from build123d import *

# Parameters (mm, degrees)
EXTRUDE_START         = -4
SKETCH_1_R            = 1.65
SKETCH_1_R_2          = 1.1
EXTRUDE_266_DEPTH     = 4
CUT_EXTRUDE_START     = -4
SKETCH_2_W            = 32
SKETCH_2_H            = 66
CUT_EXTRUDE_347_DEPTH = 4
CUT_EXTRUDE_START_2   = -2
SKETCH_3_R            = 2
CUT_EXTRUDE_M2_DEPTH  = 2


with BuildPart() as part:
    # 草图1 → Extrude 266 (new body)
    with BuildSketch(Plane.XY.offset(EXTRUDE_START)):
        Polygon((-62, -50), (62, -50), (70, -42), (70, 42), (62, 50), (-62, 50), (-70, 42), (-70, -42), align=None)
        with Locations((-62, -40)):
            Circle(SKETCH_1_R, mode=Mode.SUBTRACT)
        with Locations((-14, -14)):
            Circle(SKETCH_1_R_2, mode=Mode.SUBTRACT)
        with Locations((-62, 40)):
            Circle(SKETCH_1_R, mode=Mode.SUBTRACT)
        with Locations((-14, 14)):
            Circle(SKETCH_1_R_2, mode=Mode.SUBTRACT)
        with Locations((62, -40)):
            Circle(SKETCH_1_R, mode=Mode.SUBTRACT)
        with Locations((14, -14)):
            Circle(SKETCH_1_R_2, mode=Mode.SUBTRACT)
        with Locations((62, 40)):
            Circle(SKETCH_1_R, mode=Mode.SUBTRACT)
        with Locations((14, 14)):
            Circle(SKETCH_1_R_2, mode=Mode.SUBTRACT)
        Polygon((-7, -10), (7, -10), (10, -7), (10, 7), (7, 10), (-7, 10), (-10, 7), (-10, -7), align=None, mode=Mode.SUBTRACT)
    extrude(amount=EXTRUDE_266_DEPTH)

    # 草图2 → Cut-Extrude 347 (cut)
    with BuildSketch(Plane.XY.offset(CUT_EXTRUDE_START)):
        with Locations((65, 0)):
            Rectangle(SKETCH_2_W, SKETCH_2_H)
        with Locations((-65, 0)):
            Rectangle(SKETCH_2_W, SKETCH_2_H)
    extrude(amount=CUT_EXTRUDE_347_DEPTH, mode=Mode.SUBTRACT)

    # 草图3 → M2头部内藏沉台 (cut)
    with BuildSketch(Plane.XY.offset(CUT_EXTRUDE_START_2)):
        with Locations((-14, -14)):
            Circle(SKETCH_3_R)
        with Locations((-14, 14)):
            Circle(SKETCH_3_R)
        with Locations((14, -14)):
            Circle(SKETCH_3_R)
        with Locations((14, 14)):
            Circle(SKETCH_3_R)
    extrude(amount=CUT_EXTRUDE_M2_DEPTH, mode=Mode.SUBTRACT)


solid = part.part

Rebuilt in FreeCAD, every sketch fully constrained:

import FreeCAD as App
import Part
import Sketcher
from FreeCAD import Vector
Q = App.Units.Quantity

doc = App.newDocument("Part")
body = doc.addObject("PartDesign::Body", "Body")

sketch1 = doc.addObject("Sketcher::SketchObject", "Sketch")
body.addObject(sketch1)
sketch1.AttachmentSupport = (doc.XY_Plane, [""])
sketch1.MapMode = "FlatFace"
sketch1.AttachmentOffset = App.Placement(Vector(0, 0, -4), App.Rotation())
sketch1.addGeometry([
    Part.LineSegment(Vector(-62, -50, 0), Vector(62, -50, 0)),
    Part.LineSegment(Vector(62, -50, 0), Vector(70, -42, 0)),
    Part.LineSegment(Vector(70, -42, 0), Vector(70, 42, 0)),
    Part.LineSegment(Vector(70, 42, 0), Vector(62, 50, 0)),
    Part.LineSegment(Vector(62, 50, 0), Vector(-62, 50, 0)),
    Part.LineSegment(Vector(-62, 50, 0), Vector(-70, 42, 0)),
    Part.LineSegment(Vector(-70, 42, 0), Vector(-70, -42, 0)),
    Part.LineSegment(Vector(-70, -42, 0), Vector(-62, -50, 0)),
    Part.Circle(Vector(-62, -40, 0), Vector(0, 0, 1), 1.6),
    Part.Circle(Vector(-14, -14, 0), Vector(0, 0, 1), 1.1),
    Part.Circle(Vector(62, -40, 0), Vector(0, 0, 1), 1.6),
    Part.Circle(Vector(14, -14, 0), Vector(0, 0, 1), 1.1),
    Part.LineSegment(Vector(7, -10, 0), Vector(-7, -10, 0)),
    Part.LineSegment(Vector(-7, -10, 0), Vector(-10, -7, 0)),
    Part.LineSegment(Vector(-10, -7, 0), Vector(-10, 7, 0)),
    Part.LineSegment(Vector(-10, 7, 0), Vector(-7, 10, 0)),
    Part.LineSegment(Vector(-7, 10, 0), Vector(7, 10, 0)),
    Part.LineSegment(Vector(7, 10, 0), Vector(10, 7, 0)),
    Part.LineSegment(Vector(10, 7, 0), Vector(10, -7, 0)),
    Part.LineSegment(Vector(10, -7, 0), Vector(7, -10, 0)),
    Part.Circle(Vector(-14, 14, 0), Vector(0, 0, 1), 1.1),
    Part.Circle(Vector(-62, 40, 0), Vector(0, 0, 1), 1.6),
    Part.Circle(Vector(14, 14, 0), Vector(0, 0, 1), 1.1),
    Part.Circle(Vector(62, 40, 0), Vector(0, 0, 1), 1.6),
], False)
sketch1.addConstraint([
    Sketcher.Constraint("Coincident", 0, 2, 1, 1),
    Sketcher.Constraint("Coincident", 1, 2, 2, 1),
    Sketcher.Constraint("Coincident", 2, 2, 3, 1),
    Sketcher.Constraint("Coincident", 3, 2, 4, 1),
    Sketcher.Constraint("Coincident", 4, 2, 5, 1),
    Sketcher.Constraint("Coincident", 5, 2, 6, 1),
    Sketcher.Constraint("Coincident", 6, 2, 7, 1),
    Sketcher.Constraint("Coincident", 7, 2, 0, 1),
    Sketcher.Constraint("Coincident", 12, 2, 13, 1),
    Sketcher.Constraint("Coincident", 13, 2, 14, 1),
    Sketcher.Constraint("Coincident", 14, 2, 15, 1),
    Sketcher.Constraint("Coincident", 15, 2, 16, 1),
    Sketcher.Constraint("Coincident", 16, 2, 17, 1),
    Sketcher.Constraint("Coincident", 17, 2, 18, 1),
    Sketcher.Constraint("Coincident", 18, 2, 19, 1),
    Sketcher.Constraint("Coincident", 19, 2, 12, 1),
    Sketcher.Constraint("Horizontal", 0),
    Sketcher.Constraint("Vertical", 2),
    Sketcher.Constraint("Horizontal", 4),
    Sketcher.Constraint("Vertical", 6),
    Sketcher.Constraint("Horizontal", 12),
    Sketcher.Constraint("Vertical", 14),
    Sketcher.Constraint("Horizontal", 16),
    Sketcher.Constraint("Vertical", 18),
    Sketcher.Constraint("Equal", 8, 10),
    Sketcher.Constraint("Equal", 9, 11),
    Sketcher.Constraint("Equal", 11, 20),
    Sketcher.Constraint("Equal", 10, 21),
    Sketcher.Constraint("Equal", 20, 22),
    Sketcher.Constraint("Equal", 21, 23),
    Sketcher.Constraint("Symmetric", 11, 3, 20, 3, -1, 1),
    Sketcher.Constraint("Symmetric", 10, 3, 21, 3, -1, 1),
    Sketcher.Constraint("Symmetric", 9, 3, 22, 3, -1, 1),
    Sketcher.Constraint("Symmetric", 8, 3, 23, 3, -1, 1),
    Sketcher.Constraint("Symmetric", 0, 2, 4, 2, -1, 1),
    Sketcher.Constraint("Symmetric", 1, 2, 5, 2, -1, 1),
    Sketcher.Constraint("Symmetric", 12, 2, 16, 2, -1, 1),
    Sketcher.Constraint("Symmetric", 13, 2, 17, 2, -1, 1),
    Sketcher.Constraint("Symmetric", 8, 3, 10, 3, -2),
    Sketcher.Constraint("Symmetric", 9, 3, 11, 3, -2),
    Sketcher.Constraint("Perpendicular", 1, 3),
    Sketcher.Constraint("Perpendicular", 5, 7),
    Sketcher.Constraint("Parallel", 7, 13),
    Sketcher.Constraint("Perpendicular", 13, 15),
    Sketcher.Constraint("Perpendicular", 17, 19),
    Sketcher.Constraint("Horizontal", 2, 2, 5, 2),
    Sketcher.Constraint("Horizontal", 1, 2, 6, 2),
    Sketcher.Constraint("Horizontal", 14, 2, 17, 2),
    Sketcher.Constraint("Horizontal", 13, 2, 18, 2),
    Sketcher.Constraint("Vertical", 23, 3, 0, 2),
    Sketcher.Constraint("Vertical", 0, 2, 3, 2),
    Sketcher.Constraint("Equal", 16, 14),
    Sketcher.Constraint("Diameter", 8, Q("3.3 mm")),
    Sketcher.Constraint("Diameter", 9, Q("2.2 mm")),
    Sketcher.Constraint("DistanceX", 0, 1, 0, 2, Q("124 mm")),
    Sketcher.Constraint("DistanceX", 12, 2, 12, 1, Q("14 mm")),
    Sketcher.Constraint("DistanceY", 2, 1, 2, 2, Q("84 mm")),
    Sketcher.Constraint("DistanceY", 8, 3, -1, 1, Q("40 mm")),
    Sketcher.Constraint("DistanceX", 9, 3, -1, 1, Q("14 mm")),
    Sketcher.Constraint("DistanceY", 9, 3, -1, 1, Q("14 mm")),
    Sketcher.Constraint("DistanceY", 0, 2, -1, 1, Q("50 mm")),
    Sketcher.Constraint("DistanceY", 12, 2, -1, 1, Q("10 mm")),
])
pad1 = doc.addObject("PartDesign::Pad", "Pad")
body.addObject(pad1)
pad1.Profile = sketch1
pad1.Length = 4

sketch2 = doc.addObject("Sketcher::SketchObject", "Sketch001")
body.addObject(sketch2)
sketch2.AttachmentSupport = (doc.XY_Plane, [""])
sketch2.MapMode = "FlatFace"
sketch2.AttachmentOffset = App.Placement(Vector(0, 0, -4), App.Rotation())
sketch2.addGeometry([
    Part.LineSegment(Vector(49, 33, 0), Vector(49, -33, 0)),
    Part.LineSegment(Vector(49, -33, 0), Vector(81, -33, 0)),
    Part.LineSegment(Vector(81, -33, 0), Vector(81, 33, 0)),
    Part.LineSegment(Vector(81, 33, 0), Vector(49, 33, 0)),
    Part.LineSegment(Vector(-81, 33, 0), Vector(-81, -33, 0)),
    Part.LineSegment(Vector(-81, -33, 0), Vector(-49, -33, 0)),
    Part.LineSegment(Vector(-49, -33, 0), Vector(-49, 33, 0)),
    Part.LineSegment(Vector(-49, 33, 0), Vector(-81, 33, 0)),
], False)
sketch2.addConstraint([
    Sketcher.Constraint("Coincident", 0, 2, 1, 1),
    Sketcher.Constraint("Coincident", 1, 2, 2, 1),
    Sketcher.Constraint("Coincident", 2, 2, 3, 1),
    Sketcher.Constraint("Coincident", 3, 2, 0, 1),
    Sketcher.Constraint("Coincident", 4, 2, 5, 1),
    Sketcher.Constraint("Coincident", 5, 2, 6, 1),
    Sketcher.Constraint("Coincident", 6, 2, 7, 1),
    Sketcher.Constraint("Coincident", 7, 2, 4, 1),
    Sketcher.Constraint("Vertical", 0),
    Sketcher.Constraint("Horizontal", 1),
    Sketcher.Constraint("Vertical", 2),
    Sketcher.Constraint("Horizontal", 3),
    Sketcher.Constraint("Vertical", 4),
    Sketcher.Constraint("Horizontal", 5),
    Sketcher.Constraint("Vertical", 6),
    Sketcher.Constraint("Horizontal", 7),
    Sketcher.Constraint("Symmetric", 2, 2, 4, 2, -1, 1),
    Sketcher.Constraint("Symmetric", 0, 2, 6, 2, -1, 1),
    Sketcher.Constraint("Horizontal", 1, 2, 4, 2),
    Sketcher.Constraint("DistanceX", 1, 1, 1, 2, Q("32 mm")),
    Sketcher.Constraint("DistanceY", 0, 2, 0, 1, Q("66 mm")),
    Sketcher.Constraint("DistanceX", -1, 1, 0, 2, Q("49 mm")),
])
pocket1 = doc.addObject("PartDesign::Pocket", "Pocket")
body.addObject(pocket1)
pocket1.Profile = sketch2
pocket1.Length = 4
pocket1.Reversed = True

sketch3 = doc.addObject("Sketcher::SketchObject", "Sketch002")
body.addObject(sketch3)
sketch3.AttachmentSupport = (doc.XY_Plane, [""])
sketch3.MapMode = "FlatFace"
sketch3.AttachmentOffset = App.Placement(Vector(0, 0, -2), App.Rotation())
sketch3.addGeometry([
    Part.Circle(Vector(-14, -14, 0), Vector(0, 0, 1), 2),
    Part.Circle(Vector(-14, 14, 0), Vector(0, 0, 1), 2),
    Part.Circle(Vector(14, -14, 0), Vector(0, 0, 1), 2),
    Part.Circle(Vector(14, 14, 0), Vector(0, 0, 1), 2),
], False)
sketch3.addConstraint([
    Sketcher.Constraint("Equal", 0, 1),
    Sketcher.Constraint("Equal", 1, 2),
    Sketcher.Constraint("Equal", 2, 3),
    Sketcher.Constraint("Symmetric", 1, 3, 2, 3, -1, 1),
    Sketcher.Constraint("Symmetric", 0, 3, 3, 3, -1, 1),
    Sketcher.Constraint("Symmetric", 0, 3, 2, 3, -2),
    Sketcher.Constraint("Diameter", 0, Q("4 mm")),
    Sketcher.Constraint("DistanceX", 0, 3, -1, 1, Q("14 mm")),
    Sketcher.Constraint("DistanceY", 0, 3, -1, 1, Q("14 mm")),
])
pocket2 = doc.addObject("PartDesign::Pocket", "Pocket001")
body.addObject(pocket2)
pocket2.Profile = sketch3
pocket2.Length = 2
pocket2.Reversed = True

doc.recompute()
